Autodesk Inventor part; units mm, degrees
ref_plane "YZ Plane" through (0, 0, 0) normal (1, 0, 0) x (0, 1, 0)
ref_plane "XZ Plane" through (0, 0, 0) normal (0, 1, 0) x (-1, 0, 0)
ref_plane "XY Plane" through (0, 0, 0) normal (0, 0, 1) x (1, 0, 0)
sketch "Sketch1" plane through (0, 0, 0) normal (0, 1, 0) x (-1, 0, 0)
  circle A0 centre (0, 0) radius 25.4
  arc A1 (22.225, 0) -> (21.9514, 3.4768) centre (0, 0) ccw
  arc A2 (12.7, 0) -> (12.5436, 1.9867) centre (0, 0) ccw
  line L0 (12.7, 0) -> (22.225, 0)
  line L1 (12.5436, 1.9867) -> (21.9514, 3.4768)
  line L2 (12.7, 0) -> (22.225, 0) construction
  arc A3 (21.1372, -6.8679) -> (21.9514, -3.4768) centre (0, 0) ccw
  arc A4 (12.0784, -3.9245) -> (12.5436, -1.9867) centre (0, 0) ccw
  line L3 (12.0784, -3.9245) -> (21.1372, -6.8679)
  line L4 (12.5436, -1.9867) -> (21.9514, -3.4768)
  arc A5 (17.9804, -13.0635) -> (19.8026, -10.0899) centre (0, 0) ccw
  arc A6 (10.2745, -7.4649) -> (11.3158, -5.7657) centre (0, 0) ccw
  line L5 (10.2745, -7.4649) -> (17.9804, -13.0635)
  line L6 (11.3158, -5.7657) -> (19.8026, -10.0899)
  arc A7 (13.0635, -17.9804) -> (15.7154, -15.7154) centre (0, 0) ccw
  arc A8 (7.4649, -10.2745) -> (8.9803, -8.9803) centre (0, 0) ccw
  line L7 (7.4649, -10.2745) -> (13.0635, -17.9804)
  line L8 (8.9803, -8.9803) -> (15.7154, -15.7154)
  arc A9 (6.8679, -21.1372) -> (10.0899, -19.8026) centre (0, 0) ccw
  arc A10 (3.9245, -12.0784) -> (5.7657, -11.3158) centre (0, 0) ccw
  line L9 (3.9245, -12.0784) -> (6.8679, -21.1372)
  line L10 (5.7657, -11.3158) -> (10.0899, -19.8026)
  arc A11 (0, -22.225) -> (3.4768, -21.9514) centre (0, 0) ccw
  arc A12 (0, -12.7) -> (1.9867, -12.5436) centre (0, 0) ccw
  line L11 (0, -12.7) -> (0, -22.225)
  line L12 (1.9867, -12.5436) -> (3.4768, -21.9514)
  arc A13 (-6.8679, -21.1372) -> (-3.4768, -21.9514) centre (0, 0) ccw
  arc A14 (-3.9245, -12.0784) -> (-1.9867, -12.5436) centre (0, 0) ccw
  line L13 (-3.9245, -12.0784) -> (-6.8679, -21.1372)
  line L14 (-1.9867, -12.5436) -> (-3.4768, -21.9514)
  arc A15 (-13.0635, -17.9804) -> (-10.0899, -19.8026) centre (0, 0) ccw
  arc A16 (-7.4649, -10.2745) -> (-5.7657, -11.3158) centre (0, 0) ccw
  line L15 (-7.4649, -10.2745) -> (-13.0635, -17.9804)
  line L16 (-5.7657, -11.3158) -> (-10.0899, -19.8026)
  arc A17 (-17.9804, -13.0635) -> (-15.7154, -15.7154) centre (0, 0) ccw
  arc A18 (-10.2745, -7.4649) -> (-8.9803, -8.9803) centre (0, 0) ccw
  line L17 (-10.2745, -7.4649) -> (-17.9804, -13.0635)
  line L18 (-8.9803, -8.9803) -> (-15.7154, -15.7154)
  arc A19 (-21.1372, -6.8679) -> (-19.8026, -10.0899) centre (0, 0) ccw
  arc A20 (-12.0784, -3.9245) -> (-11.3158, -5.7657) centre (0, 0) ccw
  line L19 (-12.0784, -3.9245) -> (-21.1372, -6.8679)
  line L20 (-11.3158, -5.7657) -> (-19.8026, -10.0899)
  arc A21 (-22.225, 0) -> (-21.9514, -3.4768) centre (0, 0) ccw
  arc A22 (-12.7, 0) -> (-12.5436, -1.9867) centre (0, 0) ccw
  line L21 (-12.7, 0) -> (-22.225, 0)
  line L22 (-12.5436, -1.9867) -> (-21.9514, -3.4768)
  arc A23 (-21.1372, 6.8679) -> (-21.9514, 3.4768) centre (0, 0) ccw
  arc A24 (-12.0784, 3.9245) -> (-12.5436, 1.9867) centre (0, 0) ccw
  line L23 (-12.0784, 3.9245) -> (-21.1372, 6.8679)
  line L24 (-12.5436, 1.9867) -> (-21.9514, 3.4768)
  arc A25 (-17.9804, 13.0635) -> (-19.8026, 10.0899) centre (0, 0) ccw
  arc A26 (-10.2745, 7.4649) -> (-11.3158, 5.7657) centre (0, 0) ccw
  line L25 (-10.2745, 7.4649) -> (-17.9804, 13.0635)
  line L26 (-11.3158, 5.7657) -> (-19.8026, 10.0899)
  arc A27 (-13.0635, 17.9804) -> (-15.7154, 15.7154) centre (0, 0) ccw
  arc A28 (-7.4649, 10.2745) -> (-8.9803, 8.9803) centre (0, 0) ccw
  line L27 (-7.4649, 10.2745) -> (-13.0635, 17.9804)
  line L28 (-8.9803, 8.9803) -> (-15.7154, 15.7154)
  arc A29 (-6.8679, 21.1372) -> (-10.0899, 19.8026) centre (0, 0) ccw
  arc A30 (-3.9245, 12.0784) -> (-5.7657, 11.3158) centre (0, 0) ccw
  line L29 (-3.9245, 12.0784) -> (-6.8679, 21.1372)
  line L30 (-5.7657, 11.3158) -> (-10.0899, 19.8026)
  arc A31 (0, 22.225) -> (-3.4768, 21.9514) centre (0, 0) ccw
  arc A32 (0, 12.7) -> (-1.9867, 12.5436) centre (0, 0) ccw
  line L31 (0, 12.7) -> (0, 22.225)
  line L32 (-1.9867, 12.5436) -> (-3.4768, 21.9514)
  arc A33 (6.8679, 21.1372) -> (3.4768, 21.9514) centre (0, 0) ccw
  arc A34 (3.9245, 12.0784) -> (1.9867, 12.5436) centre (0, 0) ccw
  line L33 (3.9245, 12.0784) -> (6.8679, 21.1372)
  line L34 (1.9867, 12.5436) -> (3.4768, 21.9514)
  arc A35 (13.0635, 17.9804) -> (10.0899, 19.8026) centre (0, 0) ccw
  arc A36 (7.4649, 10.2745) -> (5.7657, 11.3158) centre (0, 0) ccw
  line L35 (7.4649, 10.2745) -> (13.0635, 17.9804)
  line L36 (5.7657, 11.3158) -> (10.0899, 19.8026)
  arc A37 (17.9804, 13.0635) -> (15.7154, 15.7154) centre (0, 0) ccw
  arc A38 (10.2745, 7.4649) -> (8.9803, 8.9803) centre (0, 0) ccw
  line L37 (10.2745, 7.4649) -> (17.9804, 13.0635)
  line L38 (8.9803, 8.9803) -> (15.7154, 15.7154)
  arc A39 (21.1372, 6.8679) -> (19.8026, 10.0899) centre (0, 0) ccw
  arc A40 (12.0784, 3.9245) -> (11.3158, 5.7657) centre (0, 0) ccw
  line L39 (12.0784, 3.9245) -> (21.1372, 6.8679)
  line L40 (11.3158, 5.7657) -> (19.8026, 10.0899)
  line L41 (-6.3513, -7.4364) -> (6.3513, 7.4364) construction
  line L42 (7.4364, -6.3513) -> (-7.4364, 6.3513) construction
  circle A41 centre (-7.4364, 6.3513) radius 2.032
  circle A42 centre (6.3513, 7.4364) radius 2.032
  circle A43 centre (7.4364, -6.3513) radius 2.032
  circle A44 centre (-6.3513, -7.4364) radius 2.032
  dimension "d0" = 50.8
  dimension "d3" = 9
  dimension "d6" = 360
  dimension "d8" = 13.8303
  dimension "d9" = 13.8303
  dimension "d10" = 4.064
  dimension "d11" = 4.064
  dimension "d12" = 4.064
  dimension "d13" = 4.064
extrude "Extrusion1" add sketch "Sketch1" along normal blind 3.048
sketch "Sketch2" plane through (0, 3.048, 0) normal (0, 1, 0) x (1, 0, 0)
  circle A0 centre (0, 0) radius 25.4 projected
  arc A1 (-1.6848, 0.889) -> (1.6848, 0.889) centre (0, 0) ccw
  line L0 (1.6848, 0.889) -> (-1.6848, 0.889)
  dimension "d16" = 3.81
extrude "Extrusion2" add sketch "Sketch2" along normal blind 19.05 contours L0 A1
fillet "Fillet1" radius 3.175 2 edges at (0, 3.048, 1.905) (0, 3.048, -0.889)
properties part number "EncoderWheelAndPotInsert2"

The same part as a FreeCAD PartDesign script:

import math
import FreeCAD as App
import Part
import Sketcher
from FreeCAD import Vector
Q = App.Units.Quantity


def edges_at(feature, points):
    """Names of the edges that pass closest to the given points."""
    edges = feature.Shape.Edges
    near = lambda p: min(range(len(edges)), key=lambda i: edges[i].distToShape(Part.Vertex(*p))[0])
    return sorted({f"Edge{near(p) + 1}" for p in points})

doc = App.newDocument("Part")
body = doc.addObject("PartDesign::Body", "Body")

# Sketch on XZ plane
sketch1 = body.newObject("Sketcher::SketchObject", "Sketch")
sketch1.AttachmentSupport = (doc.getObject("XZ_Plane"), [""])
sketch1.MapMode = "FlatFace"
sketch1.addGeometry([
    Part.Circle(Vector(0, 0, 0), Vector(0, 0, 1), 25.4),  # 0
    Part.ArcOfCircle(Part.Circle(Vector(0.001557, -0.002331, 0), Vector(0, 0, 1), 22.222181), math.radians(-63.000915), math.radians(-53.999769)),  # 1
    Part.LineSegment(Vector(13.0635, -17.9804, 0), Vector(7.4649, -10.2745, 0)),  # 2
    Part.ArcOfCircle(Part.Circle(Vector(-0.001931, 0.002891, 0), Vector(0, 0, 1), 12.703477), math.radians(-62.998109), math.radians(-54.000474)),  # 3
    Part.LineSegment(Vector(5.7657, -11.3158, 0), Vector(10.0899, -19.8026, 0)),  # 4
    Part.ArcOfCircle(Part.Circle(Vector(-0.002803, 0.009937, 0), Vector(0, 0, 1), 22.235286), math.radians(-80.996772), math.radians(-72.001026)),  # 5
    Part.LineSegment(Vector(6.8679, -21.1372, 0), Vector(3.9245, -12.0784, 0)),  # 6
    Part.ArcOfCircle(Part.Circle(Vector(0.000987, -0.003499, 0), Vector(0, 0, 1), 12.696346), math.radians(-81.001977), math.radians(-71.999399)),  # 7
    Part.LineSegment(Vector(1.9867, -12.5436, 0), Vector(3.4768, -21.9514, 0)),  # 8
    Part.ArcOfCircle(Part.Circle(Vector(0.00637, -0.005022, 0), Vector(0, 0, 1), 22.216876), math.radians(-45.002459), math.radians(-35.999126)),  # 9
    Part.LineSegment(Vector(17.9804, -13.0635, 0), Vector(10.2745, -7.4649, 0)),  # 10
    Part.ArcOfCircle(Part.Circle(Vector(-0.007503, 0.005915, 0), Vector(0, 0, 1), 12.70955), math.radians(-44.994937), math.radians(-36.001833)),  # 11
    Part.LineSegment(Vector(8.9803, -8.9803, 0), Vector(15.7154, -15.7154, 0)),  # 12
    Part.ArcOfCircle(Part.Circle(Vector(0, 0, 0), Vector(0, 0, 1), 22.22497), math.radians(-26.999934), math.radians(-18.000018)),  # 13
    Part.LineSegment(Vector(21.1372, -6.8679, 0), Vector(12.0784, -3.9245, 0)),  # 14
    Part.ArcOfCircle(Part.Circle(Vector(-0.007075, 0.00261, 0), Vector(0, 0, 1), 12.707513), math.radians(-26.996052), math.radians(-18.001292)),  # 15
    Part.LineSegment(Vector(11.3158, -5.7657, 0), Vector(19.8026, -10.0899, 0)),  # 16
    Part.ArcOfCircle(Part.Circle(Vector(-0.005384, 0.000212, 0), Vector(0, 0, 1), 22.230384), math.radians(-8.998469), math.radians(-0.000545)),  # 17
    Part.LineSegment(Vector(22.225, 0, 0), Vector(12.7, 0, 0)),  # 18
    Part.ArcOfCircle(Part.Circle(Vector(0.007162, -0.000281, 0), Vector(0, 0, 1), 12.692838), math.radians(-9.003753), math.radians(0.00127)),  # 19
    Part.LineSegment(Vector(12.5436, -1.9867, 0), Vector(21.9514, -3.4768, 0)),  # 20
    Part.Circle(Vector(6.3513, -7.4364, 0), Vector(0, 0, 1), 2.032),  # 21
    Part.ArcOfCircle(Part.Circle(Vector(0.000212, 0.005384, 0), Vector(0, 0, 1), 22.230384), math.radians(-98.998469), math.radians(-90.000545)),  # 22
    Part.LineSegment(Vector(0, -22.225, 0), Vector(0, -12.7, 0)),  # 23
    Part.ArcOfCircle(Part.Circle(Vector(-0.000281, -0.007162, 0), Vector(0, 0, 1), 12.692838), math.radians(-99.003753), math.radians(-89.99873)),  # 24
    Part.LineSegment(Vector(-1.9867, -12.5436, 0), Vector(-3.4768, -21.9514, 0)),  # 25
    Part.ArcOfCircle(Part.Circle(Vector(0, 0, 0), Vector(0, 0, 1), 22.22497), math.radians(-116.999934), math.radians(-108.000018)),  # 26
    Part.LineSegment(Vector(-6.8679, -21.1372, 0), Vector(-3.9245, -12.0784, 0)),  # 27
    Part.ArcOfCircle(Part.Circle(Vector(0.00261, 0.007075, 0), Vector(0, 0, 1), 12.707513), math.radians(-116.996052), math.radians(-108.001292)),  # 28
    Part.LineSegment(Vector(-5.7657, -11.3158, 0), Vector(-10.0899, -19.8026, 0)),  # 29
    Part.ArcOfCircle(Part.Circle(Vector(-0.005022, -0.00637, 0), Vector(0, 0, 1), 22.216876), math.radians(-135.002459), math.radians(-125.999126)),  # 30
    Part.LineSegment(Vector(-13.0635, -17.9804, 0), Vector(-7.4649, -10.2745, 0)),  # 31
    Part.ArcOfCircle(Part.Circle(Vector(0.005915, 0.007503, 0), Vector(0, 0, 1), 12.70955), math.radians(-134.994937), math.radians(-126.001833)),  # 32
    Part.LineSegment(Vector(-8.9803, -8.9803, 0), Vector(-15.7154, -15.7154, 0)),  # 33
    Part.Circle(Vector(-7.4364, -6.3513, 0), Vector(0, 0, 1), 2.032),  # 34
    Part.ArcOfCircle(Part.Circle(Vector(-0.002331, -0.001557, 0), Vector(0, 0, 1), 22.222181), math.radians(-153.000915), math.radians(-143.999769)),  # 35
    Part.LineSegment(Vector(-17.9804, -13.0635, 0), Vector(-10.2745, -7.4649, 0)),  # 36
    Part.ArcOfCircle(Part.Circle(Vector(0.002891, 0.001931, 0), Vector(0, 0, 1), 12.703477), math.radians(-152.998109), math.radians(-144.000474)),  # 37
    Part.LineSegment(Vector(-11.3158, -5.7657, 0), Vector(-19.8026, -10.0899, 0)),  # 38
    Part.ArcOfCircle(Part.Circle(Vector(0.009937, 0.002803, 0), Vector(0, 0, 1), 22.235286), math.radians(-170.996772), math.radians(-162.001026)),  # 39
    Part.LineSegment(Vector(-21.1372, -6.8679, 0), Vector(-12.0784, -3.9245, 0)),  # 40
    Part.ArcOfCircle(Part.Circle(Vector(-0.003499, -0.000987, 0), Vector(0, 0, 1), 12.696346), math.radians(-171.001977), math.radians(-161.999399)),  # 41
    Part.LineSegment(Vector(-12.5436, -1.9867, 0), Vector(-21.9514, -3.4768, 0)),  # 42
    Part.ArcOfCircle(Part.Circle(Vector(-0.009937, -0.002803, 0), Vector(0, 0, 1), 22.235286), math.radians(9.003228), math.radians(17.998974)),  # 43
    Part.LineSegment(Vector(21.1372, 6.8679, 0), Vector(12.0784, 3.9245, 0)),  # 44
    Part.ArcOfCircle(Part.Circle(Vector(0.003499, 0.000987, 0), Vector(0, 0, 1), 12.696346), math.radians(8.998023), math.radians(18.000601)),  # 45
    Part.LineSegment(Vector(12.5436, 1.9867, 0), Vector(21.9514, 3.4768, 0)),  # 46
    Part.ArcOfCircle(Part.Circle(Vector(0.002331, 0.001557, 0), Vector(0, 0, 1), 22.222181), math.radians(26.999085), math.radians(36.000231)),  # 47
    Part.LineSegment(Vector(17.9804, 13.0635, 0), Vector(10.2745, 7.4649, 0)),  # 48
    Part.ArcOfCircle(Part.Circle(Vector(-0.002891, -0.001931, 0), Vector(0, 0, 1), 12.703477), math.radians(27.001891), math.radians(35.999526)),  # 49
    Part.LineSegment(Vector(11.3158, 5.7657, 0), Vector(19.8026, 10.0899, 0)),  # 50
    Part.Circle(Vector(7.4364, 6.3513, 0), Vector(0, 0, 1), 2.032),  # 51
    Part.ArcOfCircle(Part.Circle(Vector(0.005022, 0.00637, 0), Vector(0, 0, 1), 22.216876), math.radians(44.997541), math.radians(54.000874)),  # 52
    Part.LineSegment(Vector(13.0635, 17.9804, 0), Vector(7.4649, 10.2745, 0)),  # 53
    Part.ArcOfCircle(Part.Circle(Vector(-0.005915, -0.007503, 0), Vector(0, 0, 1), 12.70955), math.radians(45.005063), math.radians(53.998167)),  # 54
    Part.LineSegment(Vector(8.9803, 8.9803, 0), Vector(15.7154, 15.7154, 0)),  # 55
    Part.ArcOfCircle(Part.Circle(Vector(0, 0, 0), Vector(0, 0, 1), 22.22497), math.radians(63.000066), math.radians(71.999982)),  # 56
    Part.LineSegment(Vector(6.8679, 21.1372, 0), Vector(3.9245, 12.0784, 0)),  # 57
    Part.ArcOfCircle(Part.Circle(Vector(-0.00261, -0.007075, 0), Vector(0, 0, 1), 12.707513), math.radians(63.003948), math.radians(71.998708)),  # 58
    Part.LineSegment(Vector(5.7657, 11.3158, 0), Vector(10.0899, 19.8026, 0)),  # 59
    Part.ArcOfCircle(Part.Circle(Vector(-0.000212, -0.005384, 0), Vector(0, 0, 1), 22.230384), math.radians(81.001531), math.radians(89.999455)),  # 60
    Part.LineSegment(Vector(0, 22.225, 0), Vector(0, 12.7, 0)),  # 61
    Part.ArcOfCircle(Part.Circle(Vector(0.000281, 0.007162, 0), Vector(0, 0, 1), 12.692838), math.radians(80.996247), math.radians(90.00127)),  # 62
    Part.LineSegment(Vector(1.9867, 12.5436, 0), Vector(3.4768, 21.9514, 0)),  # 63
    Part.Circle(Vector(-6.3513, 7.4364, 0), Vector(0, 0, 1), 2.032),  # 64
    Part.ArcOfCircle(Part.Circle(Vector(0.005384, -0.000212, 0), Vector(0, 0, 1), 22.230384), math.radians(171.001531), math.radians(179.999455)),  # 65
    Part.LineSegment(Vector(-22.225, 0, 0), Vector(-12.7, 0, 0)),  # 66
    Part.ArcOfCircle(Part.Circle(Vector(-0.007162, 0.000281, 0), Vector(0, 0, 1), 12.692838), math.radians(170.996247), math.radians(180.00127)),  # 67
    Part.LineSegment(Vector(-12.5436, 1.9867, 0), Vector(-21.9514, 3.4768, 0)),  # 68
    Part.ArcOfCircle(Part.Circle(Vector(0, 0, 0), Vector(0, 0, 1), 22.22497), math.radians(153.000066), math.radians(161.999982)),  # 69
    Part.LineSegment(Vector(-21.1372, 6.8679, 0), Vector(-12.0784, 3.9245, 0)),  # 70
    Part.ArcOfCircle(Part.Circle(Vector(0.007075, -0.00261, 0), Vector(0, 0, 1), 12.707513), math.radians(153.003948), math.radians(161.998708)),  # 71
    Part.LineSegment(Vector(-11.3158, 5.7657, 0), Vector(-19.8026, 10.0899, 0)),  # 72
    Part.ArcOfCircle(Part.Circle(Vector(-0.00637, 0.005022, 0), Vector(0, 0, 1), 22.216876), math.radians(134.997541), math.radians(144.000874)),  # 73
    Part.LineSegment(Vector(-17.9804, 13.0635, 0), Vector(-10.2745, 7.4649, 0)),  # 74
    Part.ArcOfCircle(Part.Circle(Vector(0.007503, -0.005915, 0), Vector(0, 0, 1), 12.70955), math.radians(135.005063), math.radians(143.998167)),  # 75
    Part.LineSegment(Vector(-8.9803, 8.9803, 0), Vector(-15.7154, 15.7154, 0)),  # 76
    Part.ArcOfCircle(Part.Circle(Vector(0.002803, -0.009937, 0), Vector(0, 0, 1), 22.235286), math.radians(99.003228), math.radians(107.998974)),  # 77
    Part.LineSegment(Vector(-6.8679, 21.1372, 0), Vector(-3.9245, 12.0784, 0)),  # 78
    Part.ArcOfCircle(Part.Circle(Vector(-0.000987, 0.003499, 0), Vector(0, 0, 1), 12.696346), math.radians(98.998023), math.radians(108.000601)),  # 79
    Part.LineSegment(Vector(-1.9867, 12.5436, 0), Vector(-3.4768, 21.9514, 0)),  # 80
    Part.ArcOfCircle(Part.Circle(Vector(-0.001557, 0.002331, 0), Vector(0, 0, 1), 22.222181), math.radians(116.999085), math.radians(126.000231)),  # 81
    Part.LineSegment(Vector(-13.0635, 17.9804, 0), Vector(-7.4649, 10.2745, 0)),  # 82
    Part.ArcOfCircle(Part.Circle(Vector(0.001931, -0.002891, 0), Vector(0, 0, 1), 12.703477), math.radians(117.001891), math.radians(125.999526)),  # 83
    Part.LineSegment(Vector(-5.7657, 11.3158, 0), Vector(-10.0899, 19.8026, 0)),  # 84
], False)
sketch1.addConstraint([
    Sketcher.Constraint("Coincident", 1, 2, 2, 1),
    Sketcher.Constraint("Coincident", 2, 2, 3, 2),
    Sketcher.Constraint("Coincident", 3, 1, 4, 1),
    Sketcher.Constraint("Coincident", 4, 2, 1, 1),
    Sketcher.Constraint("Coincident", 5, 2, 6, 1),
    Sketcher.Constraint("Coincident", 6, 2, 7, 2),
    Sketcher.Constraint("Coincident", 7, 1, 8, 1),
    Sketcher.Constraint("Coincident", 8, 2, 5, 1),
    Sketcher.Constraint("Coincident", 9, 2, 10, 1),
    Sketcher.Constraint("Coincident", 10, 2, 11, 2),
    Sketcher.Constraint("Coincident", 11, 1, 12, 1),
    Sketcher.Constraint("Coincident", 12, 2, 9, 1),
    Sketcher.Constraint("Coincident", 13, 2, 14, 1),
    Sketcher.Constraint("Coincident", 14, 2, 15, 2),
    Sketcher.Constraint("Coincident", 15, 1, 16, 1),
    Sketcher.Constraint("Coincident", 16, 2, 13, 1),
    Sketcher.Constraint("Coincident", 17, 2, 18, 1),
    Sketcher.Constraint("Coincident", 18, 2, 19, 2),
    Sketcher.Constraint("Coincident", 19, 1, 20, 1),
    Sketcher.Constraint("Coincident", 20, 2, 17, 1),
    Sketcher.Constraint("Coincident", 22, 2, 23, 1),
    Sketcher.Constraint("Coincident", 23, 2, 24, 2),
    Sketcher.Constraint("Coincident", 24, 1, 25, 1),
    Sketcher.Constraint("Coincident", 25, 2, 22, 1),
    Sketcher.Constraint("Coincident", 26, 2, 27, 1),
    Sketcher.Constraint("Coincident", 27, 2, 28, 2),
    Sketcher.Constraint("Coincident", 28, 1, 29, 1),
    Sketcher.Constraint("Coincident", 29, 2, 26, 1),
    Sketcher.Constraint("Coincident", 30, 2, 31, 1),
    Sketcher.Constraint("Coincident", 31, 2, 32, 2),
    Sketcher.Constraint("Coincident", 32, 1, 33, 1),
    Sketcher.Constraint("Coincident", 33, 2, 30, 1),
    Sketcher.Constraint("Coincident", 35, 2, 36, 1),
    Sketcher.Constraint("Coincident", 36, 2, 37, 2),
    Sketcher.Constraint("Coincident", 37, 1, 38, 1),
    Sketcher.Constraint("Coincident", 38, 2, 35, 1),
    Sketcher.Constraint("Coincident", 39, 2, 40, 1),
    Sketcher.Constraint("Coincident", 40, 2, 41, 2),
    Sketcher.Constraint("Coincident", 41, 1, 42, 1),
    Sketcher.Constraint("Coincident", 42, 2, 39, 1),
    Sketcher.Constraint("Coincident", 43, 2, 44, 1),
    Sketcher.Constraint("Coincident", 44, 2, 45, 2),
    Sketcher.Constraint("Coincident", 45, 1, 46, 1),
    Sketcher.Constraint("Coincident", 46, 2, 43, 1),
    Sketcher.Constraint("Coincident", 47, 2, 48, 1),
    Sketcher.Constraint("Coincident", 48, 2, 49, 2),
    Sketcher.Constraint("Coincident", 49, 1, 50, 1),
    Sketcher.Constraint("Coincident", 50, 2, 47, 1),
    Sketcher.Constraint("Coincident", 52, 2, 53, 1),
    Sketcher.Constraint("Coincident", 53, 2, 54, 2),
    Sketcher.Constraint("Coincident", 54, 1, 55, 1),
    Sketcher.Constraint("Coincident", 55, 2, 52, 1),
    Sketcher.Constraint("Coincident", 56, 2, 57, 1),
    Sketcher.Constraint("Coincident", 57, 2, 58, 2),
    Sketcher.Constraint("Coincident", 58, 1, 59, 1),
    Sketcher.Constraint("Coincident", 59, 2, 56, 1),
    Sketcher.Constraint("Coincident", 60, 2, 61, 1),
    Sketcher.Constraint("Coincident", 61, 2, 62, 2),
    Sketcher.Constraint("Coincident", 62, 1, 63, 1),
    Sketcher.Constraint("Coincident", 63, 2, 60, 1),
    Sketcher.Constraint("Coincident", 65, 2, 66, 1),
    Sketcher.Constraint("Coincident", 66, 2, 67, 2),
    Sketcher.Constraint("Coincident", 67, 1, 68, 1),
    Sketcher.Constraint("Coincident", 68, 2, 65, 1),
    Sketcher.Constraint("Coincident", 69, 2, 70, 1),
    Sketcher.Constraint("Coincident", 70, 2, 71, 2),
    Sketcher.Constraint("Coincident", 71, 1, 72, 1),
    Sketcher.Constraint("Coincident", 72, 2, 69, 1),
    Sketcher.Constraint("Coincident", 73, 2, 74, 1),
    Sketcher.Constraint("Coincident", 74, 2, 75, 2),
    Sketcher.Constraint("Coincident", 75, 1, 76, 1),
    Sketcher.Constraint("Coincident", 76, 2, 73, 1),
    Sketcher.Constraint("Coincident", 77, 2, 78, 1),
    Sketcher.Constraint("Coincident", 78, 2, 79, 2),
    Sketcher.Constraint("Coincident", 79, 1, 80, 1),
    Sketcher.Constraint("Coincident", 80, 2, 77, 1),
    Sketcher.Constraint("Coincident", 81, 2, 82, 1),
    Sketcher.Constraint("Coincident", 82, 2, 83, 2),
    Sketcher.Constraint("Coincident", 83, 1, 84, 1),
    Sketcher.Constraint("Coincident", 84, 2, 81, 1),
    Sketcher.Constraint("Horizontal", 18),
    Sketcher.Constraint("Vertical", 23),
    Sketcher.Constraint("Vertical", 61),
    Sketcher.Constraint("Horizontal", 66),
    Sketcher.Constraint("Coincident", 0, 3, -1, 1),
    Sketcher.Constraint("Coincident", 13, 3, -1, 1),
    Sketcher.Constraint("Coincident", 26, 3, -1, 1),
    Sketcher.Constraint("Coincident", 56, 3, -1, 1),
    Sketcher.Constraint("Coincident", 69, 3, -1, 1),
    Sketcher.Constraint("Equal", 17, 22),
    Sketcher.Constraint("Equal", 19, 24),
    Sketcher.Constraint("Equal", 13, 26),
    Sketcher.Constraint("Equal", 15, 28),
    Sketcher.Constraint("Equal", 9, 30),
    Sketcher.Constraint("Equal", 11, 32),
    Sketcher.Constraint("Equal", 21, 34),
    Sketcher.Constraint("Equal", 1, 35),
    Sketcher.Constraint("Equal", 3, 37),
    Sketcher.Constraint("Equal", 5, 39),
    Sketcher.Constraint("Equal", 7, 41),
    Sketcher.Constraint("Equal", 39, 43),
    Sketcher.Constraint("Equal", 41, 45),
    Sketcher.Constraint("Equal", 35, 47),
    Sketcher.Constraint("Equal", 37, 49),
    Sketcher.Constraint("Equal", 34, 51),
    Sketcher.Constraint("Equal", 30, 52),
    Sketcher.Constraint("Equal", 32, 54),
    Sketcher.Constraint("Equal", 26, 56),
    Sketcher.Constraint("Equal", 28, 58),
    Sketcher.Constraint("Equal", 22, 60),
    Sketcher.Constraint("Equal", 24, 62),
    Sketcher.Constraint("Equal", 51, 64),
    Sketcher.Constraint("Equal", 60, 65),
    Sketcher.Constraint("Equal", 62, 67),
    Sketcher.Constraint("Equal", 56, 69),
    Sketcher.Constraint("Equal", 58, 71),
    Sketcher.Constraint("Equal", 52, 73),
    Sketcher.Constraint("Equal", 54, 75),
    Sketcher.Constraint("Equal", 43, 77),
    Sketcher.Constraint("Equal", 45, 79),
    Sketcher.Constraint("Equal", 47, 81),
    Sketcher.Constraint("Equal", 49, 83),
    Sketcher.Constraint("Symmetric", 39, 3, 43, 3, -1, 1),
    Sketcher.Constraint("Symmetric", 41, 3, 45, 3, -1, 1),
    Sketcher.Constraint("Symmetric", 35, 3, 47, 3, -1, 1),
    Sketcher.Constraint("Symmetric", 37, 3, 49, 3, -1, 1),
    Sketcher.Constraint("Symmetric", 34, 3, 51, 3, -1, 1),
    Sketcher.Constraint("Symmetric", 30, 3, 52, 3, -1, 1),
    Sketcher.Constraint("Symmetric", 32, 3, 54, 3, -1, 1),
    Sketcher.Constraint("Symmetric", 28, 3, 58, 3, -1, 1),
    Sketcher.Constraint("Symmetric", 22, 3, 60, 3, -1, 1),
    Sketcher.Constraint("Symmetric", 24, 3, 62, 3, -1, 1),
    Sketcher.Constraint("Symmetric", 21, 3, 64, 3, -1, 1),
    Sketcher.Constraint("Symmetric", 17, 3, 65, 3, -1, 1),
    Sketcher.Constraint("Symmetric", 19, 3, 67, 3, -1, 1),
    Sketcher.Constraint("Symmetric", 15, 3, 71, 3, -1, 1),
    Sketcher.Constraint("Symmetric", 9, 3, 73, 3, -1, 1),
    Sketcher.Constraint("Symmetric", 11, 3, 75, 3, -1, 1),
    Sketcher.Constraint("Symmetric", 5, 3, 77, 3, -1, 1),
    Sketcher.Constraint("Symmetric", 7, 3, 79, 3, -1, 1),
    Sketcher.Constraint("Symmetric", 1, 3, 81, 3, -1, 1),
    Sketcher.Constraint("Symmetric", 3, 3, 83, 3, -1, 1),
    Sketcher.Constraint("Symmetric", 7, 1, 24, 1, -2),
    Sketcher.Constraint("Symmetric", 8, 2, 25, 2, -2),
    Sketcher.Constraint("Symmetric", 5, 2, 26, 2, -2),
    Sketcher.Constraint("Symmetric", 6, 2, 27, 2, -2),
    Sketcher.Constraint("Symmetric", 3, 1, 28, 1, -2),
    Sketcher.Constraint("Symmetric", 4, 2, 29, 2, -2),
    Sketcher.Constraint("Symmetric", 1, 2, 30, 2, -2),
    Sketcher.Constraint("Symmetric", 2, 2, 31, 2, -2),
    Sketcher.Constraint("Symmetric", 11, 1, 32, 1, -2),
    Sketcher.Constraint("Symmetric", 12, 2, 33, 2, -2),
    Sketcher.Constraint("Symmetric", 9, 2, 35, 2, -2),
    Sketcher.Constraint("Symmetric", 10, 2, 36, 2, -2),
    Sketcher.Constraint("Symmetric", 15, 1, 37, 1, -2),
    Sketcher.Constraint("Symmetric", 16, 2, 38, 2, -2),
    Sketcher.Constraint("Symmetric", 13, 2, 39, 2, -2),
    Sketcher.Constraint("Symmetric", 14, 2, 40, 2, -2),
    Sketcher.Constraint("Symmetric", 19, 1, 41, 1, -2),
    Sketcher.Constraint("Symmetric", 20, 2, 42, 2, -2),
    Sketcher.Constraint("PointOnObject", 17, 2, -1),
    Sketcher.Constraint("PointOnObject", 22, 2, -2),
    Sketcher.Constraint("PointOnObject", 60, 2, -2),
    Sketcher.Constraint("PointOnObject", 65, 2, -1),
    Sketcher.Constraint("Perpendicular", 20, 25),
    Sketcher.Constraint("Perpendicular", 14, 27),
    Sketcher.Constraint("Perpendicular", 16, 29),
    Sketcher.Constraint("Perpendicular", 10, 31),
    Sketcher.Constraint("Perpendicular", 12, 33),
    Sketcher.Constraint("Parallel", 40, 44),
    Sketcher.Constraint("Parallel", 42, 46),
    Sketcher.Constraint("Parallel", 36, 48),
    Sketcher.Constraint("Parallel", 38, 50),
    Sketcher.Constraint("Parallel", 31, 53),
    Sketcher.Constraint("Parallel", 33, 55),
    Sketcher.Constraint("Parallel", 27, 57),
    Sketcher.Constraint("Parallel", 29, 59),
    Sketcher.Constraint("Parallel", 25, 63),
    Sketcher.Constraint("Perpendicular", 63, 68),
    Sketcher.Constraint("Perpendicular", 57, 70),
    Sketcher.Constraint("Perpendicular", 59, 72),
    Sketcher.Constraint("Perpendicular", 53, 74),
    Sketcher.Constraint("Perpendicular", 55, 76),
    Sketcher.Constraint("Perpendicular", 44, 78),
    Sketcher.Constraint("Perpendicular", 46, 80),
    Sketcher.Constraint("Perpendicular", 48, 82),
    Sketcher.Constraint("Perpendicular", 50, 84),
    Sketcher.Constraint("Horizontal", 15, 3, 39, 3),
    Sketcher.Constraint("Horizontal", 24, 3, 58, 3),
    Sketcher.Constraint("Horizontal", 19, 3, 65, 3),
    Sketcher.Constraint("Horizontal", 43, 3, 83, 3),
    Sketcher.Constraint("Horizontal", 45, 1, 67, 1),
    Sketcher.Constraint("Horizontal", 43, 2, 69, 2),
    Sketcher.Constraint("Horizontal", 49, 1, 71, 1),
    Sketcher.Constraint("Horizontal", 47, 2, 73, 2),
    Sketcher.Constraint("Horizontal", 54, 1, 75, 1),
    Sketcher.Constraint("Horizontal", 56, 2, 77, 2),
    Sketcher.Constraint("Horizontal", 62, 1, 79, 1),
    Sketcher.Constraint("Horizontal", 52, 2, 81, 2),
    Sketcher.Constraint("Horizontal", 58, 1, 83, 1),
    Sketcher.Constraint("Vertical", 5, 3, 49, 3),
    Sketcher.Constraint("Vertical", 5, 3, 58, 3),
    Sketcher.Constraint("Vertical", 24, 3, 60, 3),
    Sketcher.Constraint("Vertical", 15, 3, 67, 3),
    Sketcher.Constraint("Vertical", 13, 2, 43, 2),
    Sketcher.Constraint("Vertical", 19, 1, 45, 1),
    Sketcher.Constraint("Vertical", 9, 2, 47, 2),
    Sketcher.Constraint("Vertical", 15, 1, 49, 1),
    Sketcher.Constraint("Vertical", 1, 2, 52, 2),
    Sketcher.Constraint("Vertical", 11, 1, 54, 1),
    Sketcher.Constraint("Vertical", 5, 2, 56, 2),
    Sketcher.Constraint("Vertical", 3, 1, 58, 1),
    Sketcher.Constraint("Vertical", 7, 1, 62, 1),
    Sketcher.Constraint("Equal", 66, 23),
    Sketcher.Constraint("Equal", 2, 4),
    Sketcher.Constraint("Equal", 4, 6),
    Sketcher.Constraint("Equal", 6, 8),
    Sketcher.Constraint("Equal", 8, 10),
    Sketcher.Constraint("Equal", 10, 12),
    Sketcher.Constraint("Equal", 12, 14),
    Sketcher.Constraint("Equal", 14, 16),
    Sketcher.Constraint("Diameter", 0, Q("2 in")),
    Sketcher.Constraint("Diameter", 21, Q("0.16 in")),
    Sketcher.Constraint("Angle", 20, Q("-9.0003 deg")),
    Sketcher.Constraint("DistanceY", -1, 1, 17, 3, Q("0 in")),
    Sketcher.Constraint("Angle", 2, Q("125.9997 deg")),
    Sketcher.Constraint("Angle", 4, Q("-63.0002 deg")),
    Sketcher.Constraint("Angle", 6, Q("108 deg")),
    Sketcher.Constraint("Radius", 13, Q("0.875 in")),
    Sketcher.Constraint("DistanceX", -1, 1, 18, 2, Q("0.5 in")),
    Sketcher.Constraint("Radius", 1, Q("0.8749 in")),
    Sketcher.Constraint("Radius", 5, Q("0.8754 in")),
    Sketcher.Constraint("Radius", 15, Q("0.5003 in")),
    Sketcher.Constraint("Radius", 17, Q("0.8752 in")),
    Sketcher.Constraint("Radius", 3, 12.7035),
    Sketcher.Constraint("Radius", 7, 12.6963),
    Sketcher.Constraint("Radius", 9, 22.2169),
    Sketcher.Constraint("Radius", 11, 12.7096),
    Sketcher.Constraint("DistanceX", -1, 1, 3, 1, Q("0.227 in")),
    Sketcher.Constraint("DistanceY", 15, 1, -1, 1, Q("0.227 in")),
    Sketcher.Constraint("DistanceY", 9, 3, -1, 1, Q("0.0002 in")),
    Sketcher.Constraint("DistanceX", -1, 1, 1, 2, Q("0.5143 in")),
    Sketcher.Constraint("DistanceX", -1, 1, 5, 2, Q("0.2704 in")),
    Sketcher.Constraint("DistanceX", -1, 1, 9, 2, Q("0.7079 in")),
    Sketcher.Constraint("DistanceY", 13, 2, -1, 1, Q("0.2704 in")),
    Sketcher.Constraint("DistanceX", -1, 1, 21, 3, 6.3513),
    Sketcher.Constraint("DistanceY", 21, 3, -1, 1, 7.4364),
    Sketcher.Constraint("DistanceX", 34, 3, -1, 1, 7.4364),
    Sketcher.Constraint("DistanceY", 34, 3, -1, 1, 6.3513),
    Sketcher.Constraint("DistanceX", -1, 1, 7, 1, 1.9867),
    Sketcher.Constraint("DistanceX", -1, 1, 11, 1, 8.9803),
    Sketcher.Constraint("DistanceX", -1, 1, 19, 1, 12.5436),
])
pad1 = body.newObject("PartDesign::Pad", "Pad")
pad1.Profile = sketch1
pad1.Length = Q("0.12 in")
pad1.Reversed = True

# Sketch on XZ plane
sketch2 = body.newObject("Sketcher::SketchObject", "Sketch001")
sketch2.AttachmentSupport = (doc.getObject("XZ_Plane"), [""])
sketch2.MapMode = "FlatFace"
sketch2.AttachmentOffset = App.Placement(Vector(0, 0, -0.12 * 25.4), App.Rotation())
sketch2.addGeometry([
    Part.LineSegment(Vector(1.7, -0.9, 0), Vector(-1.7, -0.9, 0)),
    Part.ArcOfCircle(Part.Circle(Vector(0, 0, 0), Vector(0, 0, 1), 1.9), math.radians(-28), math.radians(208)),
], False)
sketch2.addConstraint([
    Sketcher.Constraint("Coincident", 0, 1, 1, 1),
    Sketcher.Constraint("Coincident", 1, 2, 0, 2),
    Sketcher.Constraint("Horizontal", 0),
    Sketcher.Constraint("Coincident", 1, 3, -1, 1),
    Sketcher.Constraint("Radius", 1, Q("0.075 in")),
    Sketcher.Constraint("DistanceY", 0, 1, -1, 1, Q("0.035 in")),
])
pad2 = body.newObject("PartDesign::Pad", "Pad001")
pad2.Profile = sketch2
pad2.Length = Q("0.75 in")
pad2.Reversed = True
doc.recompute()

fillet = body.newObject("PartDesign::Fillet", "Fillet")
fillet.Base = (pad2, edges_at(pad2, [(0, 3.048, 1.905), (0, 3.048, -0.889)]))
fillet.Radius = Q("0.125 in")

doc.recompute()
